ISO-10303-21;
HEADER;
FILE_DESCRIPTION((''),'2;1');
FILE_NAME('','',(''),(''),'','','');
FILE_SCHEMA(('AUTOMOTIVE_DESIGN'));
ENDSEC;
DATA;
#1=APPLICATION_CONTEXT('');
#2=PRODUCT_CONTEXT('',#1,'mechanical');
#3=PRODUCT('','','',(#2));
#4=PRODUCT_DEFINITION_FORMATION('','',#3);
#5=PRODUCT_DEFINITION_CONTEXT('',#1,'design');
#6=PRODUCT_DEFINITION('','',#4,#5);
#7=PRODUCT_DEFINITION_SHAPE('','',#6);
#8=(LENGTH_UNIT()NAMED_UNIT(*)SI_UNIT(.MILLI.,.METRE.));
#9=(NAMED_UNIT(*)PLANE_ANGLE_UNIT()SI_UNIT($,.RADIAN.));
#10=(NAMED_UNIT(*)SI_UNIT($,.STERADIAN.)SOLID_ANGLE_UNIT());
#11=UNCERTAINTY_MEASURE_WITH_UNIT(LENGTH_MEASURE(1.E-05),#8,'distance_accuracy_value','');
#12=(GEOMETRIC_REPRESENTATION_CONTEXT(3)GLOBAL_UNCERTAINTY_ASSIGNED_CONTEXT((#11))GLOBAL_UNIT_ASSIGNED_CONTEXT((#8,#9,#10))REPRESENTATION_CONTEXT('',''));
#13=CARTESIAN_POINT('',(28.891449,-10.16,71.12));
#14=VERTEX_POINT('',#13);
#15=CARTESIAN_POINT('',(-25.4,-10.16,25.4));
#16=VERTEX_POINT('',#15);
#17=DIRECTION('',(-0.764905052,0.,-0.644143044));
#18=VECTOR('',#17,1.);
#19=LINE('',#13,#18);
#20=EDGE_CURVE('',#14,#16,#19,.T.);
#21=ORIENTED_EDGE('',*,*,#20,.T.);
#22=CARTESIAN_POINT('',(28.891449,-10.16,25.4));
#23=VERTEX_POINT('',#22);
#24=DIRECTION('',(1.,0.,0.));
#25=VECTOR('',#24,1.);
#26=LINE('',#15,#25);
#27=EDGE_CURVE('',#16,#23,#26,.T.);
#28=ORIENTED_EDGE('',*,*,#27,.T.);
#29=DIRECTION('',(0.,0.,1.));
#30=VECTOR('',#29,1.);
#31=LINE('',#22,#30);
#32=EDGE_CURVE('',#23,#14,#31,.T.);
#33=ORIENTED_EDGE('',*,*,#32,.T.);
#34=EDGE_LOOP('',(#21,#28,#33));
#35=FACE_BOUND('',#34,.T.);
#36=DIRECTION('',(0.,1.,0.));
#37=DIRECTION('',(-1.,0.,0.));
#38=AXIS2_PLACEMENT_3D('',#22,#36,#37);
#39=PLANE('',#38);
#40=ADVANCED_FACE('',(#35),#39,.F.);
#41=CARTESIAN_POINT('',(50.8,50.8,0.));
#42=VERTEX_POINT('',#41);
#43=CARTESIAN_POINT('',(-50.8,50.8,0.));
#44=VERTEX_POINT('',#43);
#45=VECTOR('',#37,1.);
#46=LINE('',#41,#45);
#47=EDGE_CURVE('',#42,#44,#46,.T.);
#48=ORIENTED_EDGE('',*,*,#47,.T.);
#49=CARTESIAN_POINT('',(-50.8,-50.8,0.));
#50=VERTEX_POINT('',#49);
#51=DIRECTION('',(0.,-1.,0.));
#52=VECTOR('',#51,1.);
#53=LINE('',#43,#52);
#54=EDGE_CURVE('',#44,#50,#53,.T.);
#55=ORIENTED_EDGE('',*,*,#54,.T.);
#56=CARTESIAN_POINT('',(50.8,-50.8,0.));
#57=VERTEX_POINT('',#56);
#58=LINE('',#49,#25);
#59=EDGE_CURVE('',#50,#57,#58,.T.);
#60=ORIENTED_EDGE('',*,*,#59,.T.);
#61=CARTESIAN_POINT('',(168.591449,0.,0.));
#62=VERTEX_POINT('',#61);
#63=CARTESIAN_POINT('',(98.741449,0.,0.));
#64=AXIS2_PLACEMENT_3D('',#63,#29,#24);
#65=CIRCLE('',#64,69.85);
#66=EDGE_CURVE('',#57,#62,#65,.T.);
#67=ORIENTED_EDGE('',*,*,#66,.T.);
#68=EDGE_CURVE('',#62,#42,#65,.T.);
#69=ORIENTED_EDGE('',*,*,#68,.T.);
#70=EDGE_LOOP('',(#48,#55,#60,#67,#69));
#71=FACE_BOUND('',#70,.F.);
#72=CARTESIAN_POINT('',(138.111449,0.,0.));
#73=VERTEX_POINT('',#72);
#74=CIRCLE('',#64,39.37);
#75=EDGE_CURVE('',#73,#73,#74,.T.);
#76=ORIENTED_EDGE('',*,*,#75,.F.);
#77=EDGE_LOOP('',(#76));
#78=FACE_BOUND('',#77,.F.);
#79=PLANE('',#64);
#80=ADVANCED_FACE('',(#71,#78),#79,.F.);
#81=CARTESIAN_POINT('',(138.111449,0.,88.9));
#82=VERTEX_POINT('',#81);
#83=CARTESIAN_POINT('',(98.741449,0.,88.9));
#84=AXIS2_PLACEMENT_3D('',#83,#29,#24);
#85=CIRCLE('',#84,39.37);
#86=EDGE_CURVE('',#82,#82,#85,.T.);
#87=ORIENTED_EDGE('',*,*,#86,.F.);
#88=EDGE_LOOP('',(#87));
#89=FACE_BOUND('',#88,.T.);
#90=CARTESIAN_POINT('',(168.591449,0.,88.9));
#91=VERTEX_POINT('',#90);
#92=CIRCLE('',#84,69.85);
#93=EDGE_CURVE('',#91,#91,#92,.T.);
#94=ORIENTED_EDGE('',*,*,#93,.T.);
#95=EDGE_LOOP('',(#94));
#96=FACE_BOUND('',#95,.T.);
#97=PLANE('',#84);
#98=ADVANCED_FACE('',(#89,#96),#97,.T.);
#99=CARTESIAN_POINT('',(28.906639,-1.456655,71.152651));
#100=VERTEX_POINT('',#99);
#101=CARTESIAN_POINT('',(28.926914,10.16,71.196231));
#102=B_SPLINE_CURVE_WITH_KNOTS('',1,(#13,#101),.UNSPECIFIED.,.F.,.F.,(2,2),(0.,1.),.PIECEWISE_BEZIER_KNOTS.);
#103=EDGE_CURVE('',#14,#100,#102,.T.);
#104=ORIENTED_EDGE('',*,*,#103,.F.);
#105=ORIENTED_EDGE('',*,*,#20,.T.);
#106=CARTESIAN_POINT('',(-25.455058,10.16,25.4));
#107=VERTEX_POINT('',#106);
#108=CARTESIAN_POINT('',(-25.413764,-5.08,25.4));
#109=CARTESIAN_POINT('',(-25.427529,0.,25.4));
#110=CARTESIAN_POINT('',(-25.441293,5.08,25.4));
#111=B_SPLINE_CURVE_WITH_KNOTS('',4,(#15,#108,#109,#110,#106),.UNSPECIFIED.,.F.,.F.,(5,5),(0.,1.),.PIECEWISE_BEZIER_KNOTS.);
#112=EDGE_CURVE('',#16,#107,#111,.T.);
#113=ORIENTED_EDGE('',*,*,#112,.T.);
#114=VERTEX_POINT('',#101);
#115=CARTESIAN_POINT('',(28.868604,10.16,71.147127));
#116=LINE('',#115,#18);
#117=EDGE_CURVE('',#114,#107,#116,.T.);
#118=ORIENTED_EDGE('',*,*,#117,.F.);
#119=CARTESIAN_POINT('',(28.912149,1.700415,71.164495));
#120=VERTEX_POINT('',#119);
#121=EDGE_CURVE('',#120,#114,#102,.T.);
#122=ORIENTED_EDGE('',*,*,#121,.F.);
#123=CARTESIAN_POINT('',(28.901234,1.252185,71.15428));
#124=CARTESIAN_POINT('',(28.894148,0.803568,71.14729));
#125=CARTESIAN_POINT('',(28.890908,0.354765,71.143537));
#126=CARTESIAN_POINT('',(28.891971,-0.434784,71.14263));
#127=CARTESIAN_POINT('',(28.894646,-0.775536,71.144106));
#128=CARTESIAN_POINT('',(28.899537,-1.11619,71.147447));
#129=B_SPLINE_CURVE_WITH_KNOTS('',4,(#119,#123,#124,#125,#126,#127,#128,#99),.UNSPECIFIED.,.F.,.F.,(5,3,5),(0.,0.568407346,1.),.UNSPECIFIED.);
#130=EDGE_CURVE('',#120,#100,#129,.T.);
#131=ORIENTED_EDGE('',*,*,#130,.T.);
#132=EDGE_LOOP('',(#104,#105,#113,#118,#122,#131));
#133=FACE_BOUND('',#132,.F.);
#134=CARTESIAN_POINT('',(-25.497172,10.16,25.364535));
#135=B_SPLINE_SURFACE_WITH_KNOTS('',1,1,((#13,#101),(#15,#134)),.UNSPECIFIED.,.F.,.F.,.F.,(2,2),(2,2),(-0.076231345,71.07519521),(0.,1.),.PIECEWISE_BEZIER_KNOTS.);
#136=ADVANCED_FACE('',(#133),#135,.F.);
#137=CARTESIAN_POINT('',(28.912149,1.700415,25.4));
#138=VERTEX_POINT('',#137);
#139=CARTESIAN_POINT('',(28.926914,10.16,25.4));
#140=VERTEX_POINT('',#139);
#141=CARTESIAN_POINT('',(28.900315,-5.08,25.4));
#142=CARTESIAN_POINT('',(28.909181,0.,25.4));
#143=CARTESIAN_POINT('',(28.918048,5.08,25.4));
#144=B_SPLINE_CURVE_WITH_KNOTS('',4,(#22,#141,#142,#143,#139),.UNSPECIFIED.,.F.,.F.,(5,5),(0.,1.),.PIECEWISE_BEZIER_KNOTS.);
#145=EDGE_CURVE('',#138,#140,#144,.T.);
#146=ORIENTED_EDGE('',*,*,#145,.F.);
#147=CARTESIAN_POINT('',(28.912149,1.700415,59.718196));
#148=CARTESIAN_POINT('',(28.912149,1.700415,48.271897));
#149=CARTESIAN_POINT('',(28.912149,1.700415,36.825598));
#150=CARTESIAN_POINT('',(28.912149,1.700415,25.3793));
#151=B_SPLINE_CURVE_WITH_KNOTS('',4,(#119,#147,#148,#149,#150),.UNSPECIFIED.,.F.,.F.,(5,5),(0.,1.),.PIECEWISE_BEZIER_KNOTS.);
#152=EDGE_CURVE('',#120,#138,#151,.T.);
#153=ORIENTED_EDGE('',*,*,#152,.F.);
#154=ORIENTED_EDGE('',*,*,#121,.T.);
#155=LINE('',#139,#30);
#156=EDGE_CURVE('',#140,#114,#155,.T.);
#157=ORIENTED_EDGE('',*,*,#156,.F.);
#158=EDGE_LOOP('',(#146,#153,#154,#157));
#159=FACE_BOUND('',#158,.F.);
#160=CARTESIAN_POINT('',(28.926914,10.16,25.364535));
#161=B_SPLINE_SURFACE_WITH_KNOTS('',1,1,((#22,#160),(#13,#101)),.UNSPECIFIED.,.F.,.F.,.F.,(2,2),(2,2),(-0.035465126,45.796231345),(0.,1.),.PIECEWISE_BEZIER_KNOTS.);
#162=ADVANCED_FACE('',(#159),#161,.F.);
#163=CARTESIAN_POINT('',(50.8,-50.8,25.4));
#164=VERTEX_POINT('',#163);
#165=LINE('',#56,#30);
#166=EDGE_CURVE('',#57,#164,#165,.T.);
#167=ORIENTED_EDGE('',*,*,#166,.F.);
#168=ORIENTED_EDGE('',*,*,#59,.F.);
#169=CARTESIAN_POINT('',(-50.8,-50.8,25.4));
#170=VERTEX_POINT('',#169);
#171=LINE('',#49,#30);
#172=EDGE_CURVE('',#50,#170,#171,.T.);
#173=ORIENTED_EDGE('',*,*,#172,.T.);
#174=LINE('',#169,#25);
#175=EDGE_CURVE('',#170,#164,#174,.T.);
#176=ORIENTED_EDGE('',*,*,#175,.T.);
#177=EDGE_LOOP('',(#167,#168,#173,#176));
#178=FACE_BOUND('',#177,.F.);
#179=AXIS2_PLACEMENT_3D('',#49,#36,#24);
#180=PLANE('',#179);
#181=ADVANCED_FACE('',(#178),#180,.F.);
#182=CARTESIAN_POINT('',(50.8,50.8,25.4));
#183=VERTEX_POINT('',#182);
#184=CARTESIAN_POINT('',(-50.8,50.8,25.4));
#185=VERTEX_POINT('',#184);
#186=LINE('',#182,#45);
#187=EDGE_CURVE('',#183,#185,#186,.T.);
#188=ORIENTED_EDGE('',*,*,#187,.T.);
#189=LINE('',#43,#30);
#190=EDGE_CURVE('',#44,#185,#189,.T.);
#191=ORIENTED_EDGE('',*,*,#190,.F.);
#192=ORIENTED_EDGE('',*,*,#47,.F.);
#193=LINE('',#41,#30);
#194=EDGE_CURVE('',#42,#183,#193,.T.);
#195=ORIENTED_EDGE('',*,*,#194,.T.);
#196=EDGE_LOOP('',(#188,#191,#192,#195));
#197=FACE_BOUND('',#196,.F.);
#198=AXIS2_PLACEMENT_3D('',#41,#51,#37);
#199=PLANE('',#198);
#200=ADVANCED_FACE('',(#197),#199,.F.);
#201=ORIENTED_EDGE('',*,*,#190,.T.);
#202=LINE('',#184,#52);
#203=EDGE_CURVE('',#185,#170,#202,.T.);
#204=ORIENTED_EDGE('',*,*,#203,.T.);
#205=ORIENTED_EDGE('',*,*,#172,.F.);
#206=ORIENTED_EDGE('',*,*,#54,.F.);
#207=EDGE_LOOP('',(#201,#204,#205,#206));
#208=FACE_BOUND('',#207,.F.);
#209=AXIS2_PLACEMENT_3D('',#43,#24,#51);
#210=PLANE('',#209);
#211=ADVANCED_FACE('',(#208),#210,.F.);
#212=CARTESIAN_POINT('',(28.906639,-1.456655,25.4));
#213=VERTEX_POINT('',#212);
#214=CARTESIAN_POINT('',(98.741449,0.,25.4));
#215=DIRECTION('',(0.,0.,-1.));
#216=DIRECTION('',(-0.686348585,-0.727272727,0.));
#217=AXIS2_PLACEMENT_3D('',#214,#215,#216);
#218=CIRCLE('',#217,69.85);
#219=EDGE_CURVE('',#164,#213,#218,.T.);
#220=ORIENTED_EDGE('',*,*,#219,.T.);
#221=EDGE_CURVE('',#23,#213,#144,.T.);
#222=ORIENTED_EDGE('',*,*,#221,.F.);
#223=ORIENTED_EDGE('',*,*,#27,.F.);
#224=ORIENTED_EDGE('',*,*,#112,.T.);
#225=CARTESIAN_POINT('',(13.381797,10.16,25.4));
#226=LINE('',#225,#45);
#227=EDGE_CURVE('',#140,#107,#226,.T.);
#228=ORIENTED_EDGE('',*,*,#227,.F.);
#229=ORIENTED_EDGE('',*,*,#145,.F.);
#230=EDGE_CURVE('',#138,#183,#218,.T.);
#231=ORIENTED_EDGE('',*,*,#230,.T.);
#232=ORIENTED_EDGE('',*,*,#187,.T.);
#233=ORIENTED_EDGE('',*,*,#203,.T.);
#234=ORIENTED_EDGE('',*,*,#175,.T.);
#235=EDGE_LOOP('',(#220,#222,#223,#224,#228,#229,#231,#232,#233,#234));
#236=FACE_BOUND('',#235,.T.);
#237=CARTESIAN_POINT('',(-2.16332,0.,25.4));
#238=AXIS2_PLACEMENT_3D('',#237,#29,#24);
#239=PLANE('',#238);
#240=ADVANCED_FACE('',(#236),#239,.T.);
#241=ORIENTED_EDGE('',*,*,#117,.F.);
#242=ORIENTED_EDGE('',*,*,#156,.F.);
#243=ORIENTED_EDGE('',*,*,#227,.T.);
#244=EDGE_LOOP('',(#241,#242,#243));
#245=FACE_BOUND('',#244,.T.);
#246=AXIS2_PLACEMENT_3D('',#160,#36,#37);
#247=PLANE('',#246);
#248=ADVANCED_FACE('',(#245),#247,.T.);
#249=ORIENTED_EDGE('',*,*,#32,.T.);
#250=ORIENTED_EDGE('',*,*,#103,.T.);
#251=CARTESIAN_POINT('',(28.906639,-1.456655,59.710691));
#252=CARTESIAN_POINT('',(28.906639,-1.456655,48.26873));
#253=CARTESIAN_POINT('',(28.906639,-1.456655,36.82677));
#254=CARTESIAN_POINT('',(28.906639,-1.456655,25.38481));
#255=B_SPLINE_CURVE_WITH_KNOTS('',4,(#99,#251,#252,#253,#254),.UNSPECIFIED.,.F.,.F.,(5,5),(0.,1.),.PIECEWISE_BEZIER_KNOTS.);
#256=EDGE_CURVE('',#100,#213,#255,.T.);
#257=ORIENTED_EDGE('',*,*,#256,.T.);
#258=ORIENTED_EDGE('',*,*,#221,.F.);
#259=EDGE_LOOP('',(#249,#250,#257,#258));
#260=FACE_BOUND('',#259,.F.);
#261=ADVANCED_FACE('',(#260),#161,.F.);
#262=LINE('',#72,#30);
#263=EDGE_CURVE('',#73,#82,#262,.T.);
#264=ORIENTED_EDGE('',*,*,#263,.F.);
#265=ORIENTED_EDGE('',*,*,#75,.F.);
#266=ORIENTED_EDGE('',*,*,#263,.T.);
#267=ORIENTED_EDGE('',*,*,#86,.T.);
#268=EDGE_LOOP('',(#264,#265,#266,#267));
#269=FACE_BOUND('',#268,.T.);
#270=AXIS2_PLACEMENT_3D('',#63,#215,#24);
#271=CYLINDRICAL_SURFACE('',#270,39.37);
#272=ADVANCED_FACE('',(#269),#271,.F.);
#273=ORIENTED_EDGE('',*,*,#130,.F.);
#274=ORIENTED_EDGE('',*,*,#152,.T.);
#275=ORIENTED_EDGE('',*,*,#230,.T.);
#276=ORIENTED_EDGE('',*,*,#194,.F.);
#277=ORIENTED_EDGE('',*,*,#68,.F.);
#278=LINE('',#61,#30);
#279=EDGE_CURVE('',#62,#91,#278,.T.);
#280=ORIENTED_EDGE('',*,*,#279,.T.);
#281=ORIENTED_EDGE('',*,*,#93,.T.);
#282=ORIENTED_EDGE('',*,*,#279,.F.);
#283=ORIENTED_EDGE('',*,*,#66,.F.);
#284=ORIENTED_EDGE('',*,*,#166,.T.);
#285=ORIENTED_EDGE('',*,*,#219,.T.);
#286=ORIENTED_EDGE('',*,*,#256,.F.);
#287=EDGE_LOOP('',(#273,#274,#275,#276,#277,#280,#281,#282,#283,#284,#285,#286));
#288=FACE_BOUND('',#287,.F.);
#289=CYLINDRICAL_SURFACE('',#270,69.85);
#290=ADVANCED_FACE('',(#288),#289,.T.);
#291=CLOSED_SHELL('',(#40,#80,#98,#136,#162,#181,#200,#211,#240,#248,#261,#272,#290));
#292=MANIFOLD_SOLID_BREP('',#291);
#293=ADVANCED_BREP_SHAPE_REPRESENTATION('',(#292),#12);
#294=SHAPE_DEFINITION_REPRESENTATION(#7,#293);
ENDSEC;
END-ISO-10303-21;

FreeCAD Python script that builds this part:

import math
import FreeCAD as App
import Part
import Sketcher
from FreeCAD import Vector
Q = App.Units.Quantity

doc = App.newDocument("Part")
params = doc.addObject("Spreadsheet::Sheet", "Params")
for row, (alias, value) in enumerate([
    ("sketch1_diameter", "5.5 in"),
    ("sketch1_diameter2", "3.1 in"),
    ("pad1_length", "3.5 in"),
    ("sketch2_width", "4 in"),
    ("sketch2_radius", "2.75 in"),
    ("pad2_length", "1 in"),
    ("sketch3_height", "1.8 in"),
    ("pad3_length", "0.8 in"),
    ("pad3_taper", "0.1 deg"),
], start=1):
    params.set(f"A{row}", alias)
    params.set(f"B{row}", "=" + value)
    params.setAlias(f"B{row}", alias)

body = doc.addObject("PartDesign::Body", "Body")

# Sketch on XY plane
sketch1 = body.newObject("Sketcher::SketchObject", "Sketch")
sketch1.AttachmentSupport = (doc.getObject("XY_Plane"), [""])
sketch1.MapMode = "FlatFace"
sketch1.addGeometry(Part.Circle(Vector(99, 0, 0), Vector(0, 0, 1), 70), False)
sketch1.addGeometry(Part.Circle(Vector(99, 0, 0), Vector(0, 0, 1), 39), False)
sketch1.addConstraint(Sketcher.Constraint("Coincident", 1, 3, 0, 3))
sketch1.addConstraint(Sketcher.Constraint("PointOnObject", 0, 3, -1))
sketch1.addConstraint(Sketcher.Constraint("Diameter", 0, Q("5.5 in")))
sketch1.addConstraint(Sketcher.Constraint("Diameter", 1, Q("3.1 in")))
sketch1.addConstraint(Sketcher.Constraint("DistanceX", -1, 1, 0, 3, Q("98.741449 mm")))
sketch1.setExpression("Constraints[2]", "Params.sketch1_diameter")
sketch1.setExpression("Constraints[3]", "Params.sketch1_diameter2")
pad1 = body.newObject("PartDesign::Pad", "Pad")
pad1.Profile = sketch1
pad1.setExpression("Length", "Params.pad1_length")

# Sketch on XY plane
sketch2 = body.newObject("Sketcher::SketchObject", "Sketch001")
sketch2.AttachmentSupport = (doc.getObject("XY_Plane"), [""])
sketch2.MapMode = "FlatFace"
sketch2.addGeometry(Part.LineSegment(Vector(51, 51, 0), Vector(-51, 51, 0)), False)
sketch2.addGeometry(Part.LineSegment(Vector(-51, 51, 0), Vector(-51, -51, 0)), False)
sketch2.addGeometry(Part.LineSegment(Vector(-51, -51, 0), Vector(51, -51, 0)), False)
sketch2.addGeometry(Part.ArcOfCircle(Part.Circle(Vector(99, 0, 0), Vector(0, 0, 1), 70), math.radians(133), math.radians(227)), False)
sketch2.addConstraint(Sketcher.Constraint("Coincident", 0, 2, 1, 1))
sketch2.addConstraint(Sketcher.Constraint("Coincident", 1, 2, 2, 1))
sketch2.addConstraint(Sketcher.Constraint("Coincident", 2, 2, 3, 2))
sketch2.addConstraint(Sketcher.Constraint("Coincident", 3, 1, 0, 1))
sketch2.addConstraint(Sketcher.Constraint("Horizontal", 0))
sketch2.addConstraint(Sketcher.Constraint("Vertical", 1))
sketch2.addConstraint(Sketcher.Constraint("Horizontal", 2))
sketch2.addConstraint(Sketcher.Constraint("Symmetric", 0, 2, 2, 2, -1, 1))
sketch2.addConstraint(Sketcher.Constraint("PointOnObject", 3, 3, -1))
sketch2.addConstraint(Sketcher.Constraint("Equal", 2, 1))
sketch2.addConstraint(Sketcher.Constraint("DistanceX", 0, 2, 0, 1, Q("4 in")))
sketch2.addConstraint(Sketcher.Constraint("Radius", 3, Q("2.75 in")))
sketch2.setExpression("Constraints[10]", "Params.sketch2_width")
sketch2.setExpression("Constraints[11]", "Params.sketch2_radius")
pad2 = body.newObject("PartDesign::Pad", "Pad001")
pad2.Profile = sketch2
pad2.setExpression("Length", "Params.pad2_length")

# Sketch on XZ plane
sketch3 = body.newObject("Sketcher::SketchObject", "Sketch002")
sketch3.AttachmentSupport = (doc.getObject("XZ_Plane"), [""])
sketch3.MapMode = "FlatFace"
sketch3.AttachmentOffset = App.Placement(Vector(0, 0, 0.4 * 25.4), App.Rotation())
sketch3.addGeometry(Part.LineSegment(Vector(29, 25, 0), Vector(29, 71, 0)), False)
sketch3.addGeometry(Part.LineSegment(Vector(29, 71, 0), Vector(-25, 25, 0)), False)
sketch3.addGeometry(Part.LineSegment(Vector(-25, 25, 0), Vector(29, 25, 0)), False)
sketch3.addConstraint(Sketcher.Constraint("Coincident", 0, 2, 1, 1))
sketch3.addConstraint(Sketcher.Constraint("Coincident", 1, 2, 2, 1))
sketch3.addConstraint(Sketcher.Constraint("Coincident", 2, 2, 0, 1))
sketch3.addConstraint(Sketcher.Constraint("Vertical", 0))
sketch3.addConstraint(Sketcher.Constraint("Horizontal", 2))
sketch3.addConstraint(Sketcher.Constraint("DistanceY", 0, 1, 0, 2, Q("1.8 in")))
sketch3.addConstraint(Sketcher.Constraint("DistanceX", 1, 2, -1, 1, Q("1 in")))
sketch3.addConstraint(Sketcher.Constraint("DistanceY", -1, 1, 1, 2, Q("1 in")))
sketch3.addConstraint(Sketcher.Constraint("DistanceX", 2, 1, 2, 2, Q("54.291449 mm")))
sketch3.setExpression("Constraints[5]", "Params.sketch3_height")
pad3 = body.newObject("PartDesign::Pad", "Pad002")
pad3.Profile = sketch3
pad3.setExpression("Length", "Params.pad3_length")
pad3.Reversed = True
pad3.setExpression("TaperAngle", "Params.pad3_taper")

doc.recompute()
